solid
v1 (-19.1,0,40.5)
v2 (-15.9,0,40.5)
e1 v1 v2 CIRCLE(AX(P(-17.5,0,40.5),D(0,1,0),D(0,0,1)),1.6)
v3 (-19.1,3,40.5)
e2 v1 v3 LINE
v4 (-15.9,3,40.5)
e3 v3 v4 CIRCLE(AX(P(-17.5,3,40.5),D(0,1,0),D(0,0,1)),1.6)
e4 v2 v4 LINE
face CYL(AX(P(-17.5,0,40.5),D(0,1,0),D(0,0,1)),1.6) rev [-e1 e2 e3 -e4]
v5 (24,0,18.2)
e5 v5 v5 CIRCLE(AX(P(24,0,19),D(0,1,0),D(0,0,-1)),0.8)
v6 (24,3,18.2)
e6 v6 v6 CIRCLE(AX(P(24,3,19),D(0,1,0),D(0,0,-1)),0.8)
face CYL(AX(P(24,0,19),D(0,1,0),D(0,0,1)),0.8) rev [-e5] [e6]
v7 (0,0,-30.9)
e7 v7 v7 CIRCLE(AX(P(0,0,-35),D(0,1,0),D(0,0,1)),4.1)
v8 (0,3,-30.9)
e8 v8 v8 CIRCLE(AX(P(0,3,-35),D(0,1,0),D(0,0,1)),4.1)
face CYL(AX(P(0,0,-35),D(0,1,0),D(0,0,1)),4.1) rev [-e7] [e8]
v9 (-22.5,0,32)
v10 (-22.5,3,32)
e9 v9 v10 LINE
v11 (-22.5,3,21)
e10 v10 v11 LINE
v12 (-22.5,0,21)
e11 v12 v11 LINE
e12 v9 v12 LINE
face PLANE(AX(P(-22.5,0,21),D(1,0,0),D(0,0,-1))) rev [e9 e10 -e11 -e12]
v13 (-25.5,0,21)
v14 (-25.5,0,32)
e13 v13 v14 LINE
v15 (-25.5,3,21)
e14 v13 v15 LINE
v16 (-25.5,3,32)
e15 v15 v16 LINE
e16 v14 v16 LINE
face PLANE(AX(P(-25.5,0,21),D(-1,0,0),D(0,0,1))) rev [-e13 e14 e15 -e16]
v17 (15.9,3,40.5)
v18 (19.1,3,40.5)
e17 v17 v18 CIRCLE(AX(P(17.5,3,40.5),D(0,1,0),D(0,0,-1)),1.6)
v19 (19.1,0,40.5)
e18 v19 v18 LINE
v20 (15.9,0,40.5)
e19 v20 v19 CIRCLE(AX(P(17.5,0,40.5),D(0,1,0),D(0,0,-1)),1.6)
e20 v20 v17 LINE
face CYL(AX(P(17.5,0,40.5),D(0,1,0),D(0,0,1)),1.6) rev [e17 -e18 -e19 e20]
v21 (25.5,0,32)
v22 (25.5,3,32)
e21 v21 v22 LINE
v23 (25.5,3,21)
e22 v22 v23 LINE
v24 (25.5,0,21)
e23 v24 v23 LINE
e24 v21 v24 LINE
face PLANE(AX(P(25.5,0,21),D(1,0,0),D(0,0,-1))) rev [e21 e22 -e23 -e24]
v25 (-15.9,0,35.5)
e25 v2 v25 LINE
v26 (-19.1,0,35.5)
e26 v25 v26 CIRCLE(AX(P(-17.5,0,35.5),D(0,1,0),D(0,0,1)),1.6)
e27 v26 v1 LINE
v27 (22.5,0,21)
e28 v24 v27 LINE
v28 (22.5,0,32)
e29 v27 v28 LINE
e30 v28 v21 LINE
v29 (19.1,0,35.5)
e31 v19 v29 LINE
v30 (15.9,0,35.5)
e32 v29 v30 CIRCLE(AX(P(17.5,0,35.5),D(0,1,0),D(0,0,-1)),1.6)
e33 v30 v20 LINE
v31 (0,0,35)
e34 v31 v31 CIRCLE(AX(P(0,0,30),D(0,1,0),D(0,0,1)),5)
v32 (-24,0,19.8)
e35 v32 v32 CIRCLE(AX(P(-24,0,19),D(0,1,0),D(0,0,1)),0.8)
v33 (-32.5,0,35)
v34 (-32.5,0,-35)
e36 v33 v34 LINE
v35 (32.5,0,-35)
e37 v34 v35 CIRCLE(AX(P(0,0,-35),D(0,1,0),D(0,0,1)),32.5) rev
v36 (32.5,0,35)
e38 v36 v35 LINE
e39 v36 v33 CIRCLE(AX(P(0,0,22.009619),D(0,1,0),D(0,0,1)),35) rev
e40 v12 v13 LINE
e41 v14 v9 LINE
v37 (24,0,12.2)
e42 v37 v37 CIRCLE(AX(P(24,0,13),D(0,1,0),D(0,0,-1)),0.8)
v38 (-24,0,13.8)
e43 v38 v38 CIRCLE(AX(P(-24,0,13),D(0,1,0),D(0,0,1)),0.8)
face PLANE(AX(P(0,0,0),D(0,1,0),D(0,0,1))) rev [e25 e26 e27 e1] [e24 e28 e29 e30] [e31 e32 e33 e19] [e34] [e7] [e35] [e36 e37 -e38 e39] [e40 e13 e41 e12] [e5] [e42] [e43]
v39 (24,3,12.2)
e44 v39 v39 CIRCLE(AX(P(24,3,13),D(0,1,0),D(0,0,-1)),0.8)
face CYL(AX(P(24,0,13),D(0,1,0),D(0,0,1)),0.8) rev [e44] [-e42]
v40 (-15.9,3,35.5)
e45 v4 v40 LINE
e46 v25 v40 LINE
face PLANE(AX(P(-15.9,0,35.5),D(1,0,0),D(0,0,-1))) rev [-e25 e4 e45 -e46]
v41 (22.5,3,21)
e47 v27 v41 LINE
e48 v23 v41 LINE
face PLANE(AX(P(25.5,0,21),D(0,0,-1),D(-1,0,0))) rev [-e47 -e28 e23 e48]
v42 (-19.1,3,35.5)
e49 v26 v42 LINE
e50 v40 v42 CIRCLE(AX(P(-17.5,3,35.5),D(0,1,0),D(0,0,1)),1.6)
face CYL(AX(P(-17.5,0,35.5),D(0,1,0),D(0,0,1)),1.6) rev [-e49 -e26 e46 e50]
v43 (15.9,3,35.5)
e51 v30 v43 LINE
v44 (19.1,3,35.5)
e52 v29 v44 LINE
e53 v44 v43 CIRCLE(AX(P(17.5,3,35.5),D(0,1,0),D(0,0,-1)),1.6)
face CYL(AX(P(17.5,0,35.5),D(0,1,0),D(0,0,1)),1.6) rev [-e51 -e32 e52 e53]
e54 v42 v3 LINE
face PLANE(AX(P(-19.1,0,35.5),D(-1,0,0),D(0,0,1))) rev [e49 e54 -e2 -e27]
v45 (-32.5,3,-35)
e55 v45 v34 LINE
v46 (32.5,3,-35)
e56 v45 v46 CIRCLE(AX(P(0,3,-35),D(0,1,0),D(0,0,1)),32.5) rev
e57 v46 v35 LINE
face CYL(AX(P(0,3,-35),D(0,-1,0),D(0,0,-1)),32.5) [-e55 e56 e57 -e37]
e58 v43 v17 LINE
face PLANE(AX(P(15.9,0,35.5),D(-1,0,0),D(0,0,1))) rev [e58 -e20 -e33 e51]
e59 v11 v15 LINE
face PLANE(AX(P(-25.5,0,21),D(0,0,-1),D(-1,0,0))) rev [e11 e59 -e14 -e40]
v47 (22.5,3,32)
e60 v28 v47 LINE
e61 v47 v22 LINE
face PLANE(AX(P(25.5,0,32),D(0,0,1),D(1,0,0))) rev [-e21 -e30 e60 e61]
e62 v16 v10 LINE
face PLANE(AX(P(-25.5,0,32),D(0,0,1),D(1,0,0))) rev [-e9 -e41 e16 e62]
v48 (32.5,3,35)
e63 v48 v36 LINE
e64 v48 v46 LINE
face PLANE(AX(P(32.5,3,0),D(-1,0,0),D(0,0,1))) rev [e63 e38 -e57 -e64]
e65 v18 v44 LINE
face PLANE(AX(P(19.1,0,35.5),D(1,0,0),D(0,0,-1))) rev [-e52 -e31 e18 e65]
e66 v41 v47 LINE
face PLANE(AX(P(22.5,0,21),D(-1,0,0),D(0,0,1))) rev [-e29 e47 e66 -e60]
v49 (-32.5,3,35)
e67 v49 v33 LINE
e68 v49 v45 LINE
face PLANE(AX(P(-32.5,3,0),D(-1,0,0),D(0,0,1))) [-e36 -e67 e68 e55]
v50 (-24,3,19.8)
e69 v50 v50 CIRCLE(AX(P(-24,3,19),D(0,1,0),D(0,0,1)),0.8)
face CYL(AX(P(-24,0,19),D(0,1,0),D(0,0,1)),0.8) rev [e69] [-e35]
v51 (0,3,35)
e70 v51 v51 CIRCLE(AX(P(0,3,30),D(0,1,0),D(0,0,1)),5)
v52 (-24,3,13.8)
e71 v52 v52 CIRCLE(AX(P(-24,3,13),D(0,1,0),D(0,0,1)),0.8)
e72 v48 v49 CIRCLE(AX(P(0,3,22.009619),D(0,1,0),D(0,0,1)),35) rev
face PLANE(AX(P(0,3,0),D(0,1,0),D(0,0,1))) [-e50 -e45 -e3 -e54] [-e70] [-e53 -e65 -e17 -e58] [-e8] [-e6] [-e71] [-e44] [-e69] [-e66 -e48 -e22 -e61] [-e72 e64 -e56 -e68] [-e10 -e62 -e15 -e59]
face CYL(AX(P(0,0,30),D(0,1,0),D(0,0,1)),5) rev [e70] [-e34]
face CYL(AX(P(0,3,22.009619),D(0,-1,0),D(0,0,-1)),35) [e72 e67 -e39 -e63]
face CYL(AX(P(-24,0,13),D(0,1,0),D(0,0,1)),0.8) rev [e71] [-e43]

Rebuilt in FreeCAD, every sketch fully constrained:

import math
import FreeCAD as App
import Part
import Sketcher
Q = App.Units.Quantity

doc = App.newDocument("Part")
body = doc.addObject("PartDesign::Body", "Body")

sketch1 = body.newObject("Sketcher::SketchObject", "Sketch")
sketch1.AttachmentSupport = (doc.getObject("XZ_Plane"), [""])
sketch1.MapMode = "FlatFace"
sketch1.addGeometry(Part.LineSegment(App.Vector(-32, -35, 0), App.Vector(-32, 35, 0)), False)
sketch1.addGeometry(Part.ArcOfCircle(Part.Circle(App.Vector(0, 22, 0), App.Vector(0, 0, 1), 35), math.radians(22), math.radians(158)), False)
sketch1.addGeometry(Part.LineSegment(App.Vector(32, 35, 0), App.Vector(32, -35, 0)), False)
sketch1.addGeometry(Part.ArcOfCircle(Part.Circle(App.Vector(0, -35, 0), App.Vector(0, 0, 1), 32), math.radians(180), math.radians(360)), False)
sketch1.addConstraint(Sketcher.Constraint("Coincident", 0, 2, 1, 2))
sketch1.addConstraint(Sketcher.Constraint("Coincident", 1, 1, 2, 1))
sketch1.addConstraint(Sketcher.Constraint("Tangent", 2, 2, 3, 2))
sketch1.addConstraint(Sketcher.Constraint("Tangent", 3, 1, 0, 1))
sketch1.addConstraint(Sketcher.Constraint("Vertical", 0))
sketch1.addConstraint(Sketcher.Constraint("Vertical", 2))
sketch1.addConstraint(Sketcher.Constraint("Symmetric", 0, 2, 2, 2, -1, 1))
sketch1.addConstraint(Sketcher.Constraint("PointOnObject", 1, 3, -2))
sketch1.addConstraint(Sketcher.Constraint("Radius", 1, Q("35 mm")))
sketch1.addConstraint(Sketcher.Constraint("Radius", 3, Q("32.5 mm")))
sketch1.addConstraint(Sketcher.Constraint("DistanceY", 0, 1, 0, 2, Q("70 mm")))
pad1 = body.newObject("PartDesign::Pad", "Pad")
pad1.Profile = sketch1
pad1.Length = 3
pad1.Reversed = True

sketch2 = body.newObject("Sketcher::SketchObject", "Sketch001")
sketch2.AttachmentSupport = (doc.getObject("XZ_Plane"), [""])
sketch2.MapMode = "FlatFace"
sketch2.AttachmentOffset = App.Placement(App.Vector(0, 0, -3), App.Rotation())
sketch2.addGeometry(Part.Circle(App.Vector(0, -35, 0), App.Vector(0, 0, 1), 4.1), False)
sketch2.addGeometry(Part.Circle(App.Vector(0, 30, 0), App.Vector(0, 0, 1), 5), False)
sketch2.addGeometry(Part.Circle(App.Vector(-17.5, 38, 0), App.Vector(0, 0, 1), 1.6), False)
sketch2.addGeometry(Part.Circle(App.Vector(17.5, 38, 0), App.Vector(0, 0, 1), 1.6), False)
sketch2.addConstraint(Sketcher.Constraint("Equal", 2, 3))
sketch2.addConstraint(Sketcher.Constraint("Symmetric", 2, 3, 3, 3, -2))
sketch2.addConstraint(Sketcher.Constraint("PointOnObject", 0, 3, -2))
sketch2.addConstraint(Sketcher.Constraint("PointOnObject", 1, 3, -2))
sketch2.addConstraint(Sketcher.Constraint("Diameter", 1, Q("10 mm")))
sketch2.addConstraint(Sketcher.Constraint("Diameter", 0, Q("8.2 mm")))
sketch2.addConstraint(Sketcher.Constraint("Diameter", 2, Q("3.2 mm")))
sketch2.addConstraint(Sketcher.Constraint("DistanceY", 0, 3, -1, 1, Q("35 mm")))
sketch2.addConstraint(Sketcher.Constraint("DistanceY", -1, 1, 1, 3, Q("30 mm")))
sketch2.addConstraint(Sketcher.Constraint("DistanceY", -1, 1, 2, 3, Q("38 mm")))
sketch2.addConstraint(Sketcher.Constraint("DistanceX", 2, 3, 3, 3, Q("35 mm")))
pocket1 = body.newObject("PartDesign::Pocket", "Pocket")
pocket1.Profile = sketch2
pocket1.Type = "ThroughAll"
pocket1.Reversed = True

sketch3 = body.newObject("Sketcher::SketchObject", "Sketch002")
sketch3.AttachmentSupport = (doc.getObject("XZ_Plane"), [""])
sketch3.MapMode = "FlatFace"
sketch3.AttachmentOffset = App.Placement(App.Vector(0, 0, -3), App.Rotation())
sketch3.addGeometry(Part.Circle(App.Vector(-24, 13, 0), App.Vector(0, 0, 1), 0.8), False)
sketch3.addGeometry(Part.Circle(App.Vector(-24, 19, 0), App.Vector(0, 0, 1), 0.8), False)
sketch3.addGeometry(Part.Circle(App.Vector(24, 19, 0), App.Vector(0, 0, 1), 0.8), False)
sketch3.addGeometry(Part.Circle(App.Vector(24, 13, 0), App.Vector(0, 0, 1), 0.8), False)
sketch3.addGeometry(Part.LineSegment(App.Vector(22.5, 21, 0), App.Vector(22.5, 32, 0)), False)
sketch3.addGeometry(Part.LineSegment(App.Vector(22.5, 32, 0), App.Vector(25.5, 32, 0)), False)
sketch3.addGeometry(Part.LineSegment(App.Vector(25.5, 32, 0), App.Vector(25.5, 21, 0)), False)
sketch3.addGeometry(Part.LineSegment(App.Vector(25.5, 21, 0), App.Vector(22.5, 21, 0)), False)
sketch3.addGeometry(Part.LineSegment(App.Vector(-25.5, 21, 0), App.Vector(-25.5, 32, 0)), False)
sketch3.addGeometry(Part.LineSegment(App.Vector(-25.5, 32, 0), App.Vector(-22.5, 32, 0)), False)
sketch3.addGeometry(Part.LineSegment(App.Vector(-22.5, 32, 0), App.Vector(-22.5, 21, 0)), False)
sketch3.addGeometry(Part.LineSegment(App.Vector(-22.5, 21, 0), App.Vector(-25.5, 21, 0)), False)
sketch3.addConstraint(Sketcher.Constraint("Coincident", 4, 2, 5, 1))
sketch3.addConstraint(Sketcher.Constraint("Coincident", 5, 2, 6, 1))
sketch3.addConstraint(Sketcher.Constraint("Coincident", 6, 2, 7, 1))
sketch3.addConstraint(Sketcher.Constraint("Coincident", 7, 2, 4, 1))
sketch3.addConstraint(Sketcher.Constraint("Coincident", 8, 2, 9, 1))
sketch3.addConstraint(Sketcher.Constraint("Coincident", 9, 2, 10, 1))
sketch3.addConstraint(Sketcher.Constraint("Coincident", 10, 2, 11, 1))
sketch3.addConstraint(Sketcher.Constraint("Coincident", 11, 2, 8, 1))
sketch3.addConstraint(Sketcher.Constraint("Vertical", 4))
sketch3.addConstraint(Sketcher.Constraint("Horizontal", 5))
sketch3.addConstraint(Sketcher.Constraint("Vertical", 6))
sketch3.addConstraint(Sketcher.Constraint("Horizontal", 7))
sketch3.addConstraint(Sketcher.Constraint("Vertical", 8))
sketch3.addConstraint(Sketcher.Constraint("Horizontal", 9))
sketch3.addConstraint(Sketcher.Constraint("Vertical", 10))
sketch3.addConstraint(Sketcher.Constraint("Horizontal", 11))
sketch3.addConstraint(Sketcher.Constraint("Equal", 0, 1))
sketch3.addConstraint(Sketcher.Constraint("Equal", 1, 2))
sketch3.addConstraint(Sketcher.Constraint("Equal", 2, 3))
sketch3.addConstraint(Sketcher.Constraint("Symmetric", 1, 3, 2, 3, -2))
sketch3.addConstraint(Sketcher.Constraint("Symmetric", 0, 3, 3, 3, -2))
sketch3.addConstraint(Sketcher.Constraint("Symmetric", 5, 2, 8, 2, -2))
sketch3.addConstraint(Sketcher.Constraint("Symmetric", 7, 2, 10, 2, -2))
sketch3.addConstraint(Sketcher.Constraint("Vertical", 0, 3, 1, 3))
sketch3.addConstraint(Sketcher.Constraint("Diameter", 0, Q("1.6 mm")))
sketch3.addConstraint(Sketcher.Constraint("DistanceX", 5, 1, 5, 2, Q("3 mm")))
sketch3.addConstraint(Sketcher.Constraint("DistanceY", 4, 1, 4, 2, Q("11 mm")))
sketch3.addConstraint(Sketcher.Constraint("DistanceX", 0, 3, -1, 1, Q("24 mm")))
sketch3.addConstraint(Sketcher.Constraint("DistanceY", -1, 1, 0, 3, Q("13 mm")))
sketch3.addConstraint(Sketcher.Constraint("DistanceY", -1, 1, 1, 3, Q("19 mm")))
sketch3.addConstraint(Sketcher.Constraint("DistanceY", -1, 1, 4, 2, Q("32 mm")))
sketch3.addConstraint(Sketcher.Constraint("DistanceX", 8, 2, 4, 2, Q("48 mm")))
pocket2 = body.newObject("PartDesign::Pocket", "Pocket001")
pocket2.Profile = sketch3
pocket2.Type = "ThroughAll"
pocket2.Reversed = True

sketch4 = body.newObject("Sketcher::SketchObject", "Sketch003")
sketch4.AttachmentSupport = (doc.getObject("XZ_Plane"), [""])
sketch4.MapMode = "FlatFace"
sketch4.AttachmentOffset = App.Placement(App.Vector(0, 0, -3), App.Rotation())
sketch4.addGeometry(Part.LineSegment(App.Vector(-15.9, 40.5, 0), App.Vector(-15.9, 35.5, 0)), False)
sketch4.addGeometry(Part.ArcOfCircle(Part.Circle(App.Vector(-17.5, 35.5, 0), App.Vector(0, 0, 1), 1.6), math.radians(180), math.radians(360)), False)
sketch4.addGeometry(Part.LineSegment(App.Vector(-19.1, 35.5, 0), App.Vector(-19.1, 40.5, 0)), False)
sketch4.addGeometry(Part.ArcOfCircle(Part.Circle(App.Vector(-17.5, 40.5, 0), App.Vector(0, 0, 1), 1.6), math.radians(0), math.radians(180)), False)
sketch4.addGeometry(Part.LineSegment(App.Vector(15.9, 35.5, 0), App.Vector(15.9, 40.5, 0)), False)
sketch4.addGeometry(Part.ArcOfCircle(Part.Circle(App.Vector(17.5, 40.5, 0), App.Vector(0, 0, 1), 1.6), math.radians(0), math.radians(180)), False)
sketch4.addGeometry(Part.LineSegment(App.Vector(19.1, 40.5, 0), App.Vector(19.1, 35.5, 0)), False)
sketch4.addGeometry(Part.ArcOfCircle(Part.Circle(App.Vector(17.5, 35.5, 0), App.Vector(0, 0, 1), 1.6), math.radians(180), math.radians(360)), False)
sketch4.addConstraint(Sketcher.Constraint("Tangent", 0, 2, 1, 2))
sketch4.addConstraint(Sketcher.Constraint("Tangent", 1, 1, 2, 1))
sketch4.addConstraint(Sketcher.Constraint("Tangent", 2, 2, 3, 2))
sketch4.addConstraint(Sketcher.Constraint("Tangent", 3, 1, 0, 1))
sketch4.addConstraint(Sketcher.Constraint("Tangent", 4, 2, 5, 2))
sketch4.addConstraint(Sketcher.Constraint("Tangent", 5, 1, 6, 1))
sketch4.addConstraint(Sketcher.Constraint("Tangent", 6, 2, 7, 2))
sketch4.addConstraint(Sketcher.Constraint("Tangent", 7, 1, 4, 1))
sketch4.addConstraint(Sketcher.Constraint("Vertical", 0))
sketch4.addConstraint(Sketcher.Constraint("Vertical", 2))
sketch4.addConstraint(Sketcher.Constraint("Vertical", 4))
sketch4.addConstraint(Sketcher.Constraint("Vertical", 6))
sketch4.addConstraint(Sketcher.Constraint("Equal", 3, 5))
sketch4.addConstraint(Sketcher.Constraint("Symmetric", 3, 3, 5, 3, -2))
sketch4.addConstraint(Sketcher.Constraint("Horizontal", 1, 3, 7, 3))
sketch4.addConstraint(Sketcher.Constraint("Radius", 1, Q("1.6 mm")))
sketch4.addConstraint(Sketcher.Constraint("DistanceY", 0, 2, 0, 1, Q("5 mm")))
sketch4.addConstraint(Sketcher.Constraint("DistanceX", 3, 3, 5, 3, Q("35 mm")))
sketch4.addConstraint(Sketcher.Constraint("DistanceY", -1, 1, 1, 3, Q("35.5 mm")))
pocket3 = body.newObject("PartDesign::Pocket", "Pocket002")
pocket3.Profile = sketch4
pocket3.Type = "ThroughAll"
pocket3.Reversed = True

doc.recompute()
